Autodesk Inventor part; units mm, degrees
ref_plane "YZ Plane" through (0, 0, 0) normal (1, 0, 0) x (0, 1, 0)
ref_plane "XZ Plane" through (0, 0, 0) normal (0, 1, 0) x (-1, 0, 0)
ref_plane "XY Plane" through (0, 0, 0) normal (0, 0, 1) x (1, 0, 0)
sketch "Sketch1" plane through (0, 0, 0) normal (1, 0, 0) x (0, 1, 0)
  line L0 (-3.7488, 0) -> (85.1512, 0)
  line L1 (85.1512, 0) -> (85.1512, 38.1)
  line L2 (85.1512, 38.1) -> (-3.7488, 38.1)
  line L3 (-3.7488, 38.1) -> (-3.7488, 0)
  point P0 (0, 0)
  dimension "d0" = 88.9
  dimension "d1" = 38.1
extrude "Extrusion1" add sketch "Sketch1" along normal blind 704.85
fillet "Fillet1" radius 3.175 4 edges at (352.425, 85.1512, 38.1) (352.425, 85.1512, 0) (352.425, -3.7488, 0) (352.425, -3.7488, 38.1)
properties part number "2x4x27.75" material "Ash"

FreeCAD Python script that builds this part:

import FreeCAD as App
import Part
import Sketcher
from FreeCAD import Vector
Q = App.Units.Quantity


def edges_at(feature, points):
    """Names of the edges that pass closest to the given points."""
    edges = feature.Shape.Edges
    near = lambda p: min(range(len(edges)), key=lambda i: edges[i].distToShape(Part.Vertex(*p))[0])
    return sorted({f"Edge{near(p) + 1}" for p in points})


def add_polygon(sketch, points):
    """Adds a closed chain of lines whose ends are joined by coincident constraints."""
    first, n = sketch.GeometryCount, len(points)
    for a, b in zip(points, points[1:] + points[:1]):
        sketch.addGeometry(Part.LineSegment(App.Vector(*a, 0), App.Vector(*b, 0)), False)
    for i in range(n):
        sketch.addConstraint(Sketcher.Constraint("Coincident", first + i, 2, first + (i + 1) % n, 1))

doc = App.newDocument("Part")
body = doc.addObject("PartDesign::Body", "Body")

# Sketch on YZ plane
sketch1 = doc.addObject("Sketcher::SketchObject", "Sketch")
body.addObject(sketch1)
sketch1.AttachmentSupport = (doc.YZ_Plane, [""])
sketch1.MapMode = "FlatFace"
add_polygon(sketch1, [(-4, 38), (-4, 0), (85, 0), (85, 38)])  # lines 0-3
sketch1.addConstraint(Sketcher.Constraint("Vertical", 0))
sketch1.addConstraint(Sketcher.Constraint("Horizontal", 1))
sketch1.addConstraint(Sketcher.Constraint("Vertical", 2))
sketch1.addConstraint(Sketcher.Constraint("Horizontal", 3))
sketch1.addConstraint(Sketcher.Constraint("PointOnObject", 0, 2, -1))
sketch1.addConstraint(Sketcher.Constraint("DistanceX", 1, 1, 1, 2, Q("3.5 in")))
sketch1.addConstraint(Sketcher.Constraint("DistanceY", 0, 2, 0, 1, Q("1.5 in")))
sketch1.addConstraint(Sketcher.Constraint("DistanceX", 0, 2, -1, 1, Q("0.1476 in")))
pad1 = doc.addObject("PartDesign::Pad", "Pad")
body.addObject(pad1)
pad1.Profile = sketch1
pad1.Length = Q("27.75 in")
doc.recompute()

fillet = doc.addObject("PartDesign::Fillet", "Fillet")
body.addObject(fillet)
fillet.Base = (pad1, edges_at(pad1, [
    (352.425, 85.151, 38.1),
    (352.425, 85.151, 0),
    (352.425, -3.749, 0),
    (352.425, -3.749, 38.1),
]))
fillet.Radius = Q("0.125 in")

doc.recompute()
